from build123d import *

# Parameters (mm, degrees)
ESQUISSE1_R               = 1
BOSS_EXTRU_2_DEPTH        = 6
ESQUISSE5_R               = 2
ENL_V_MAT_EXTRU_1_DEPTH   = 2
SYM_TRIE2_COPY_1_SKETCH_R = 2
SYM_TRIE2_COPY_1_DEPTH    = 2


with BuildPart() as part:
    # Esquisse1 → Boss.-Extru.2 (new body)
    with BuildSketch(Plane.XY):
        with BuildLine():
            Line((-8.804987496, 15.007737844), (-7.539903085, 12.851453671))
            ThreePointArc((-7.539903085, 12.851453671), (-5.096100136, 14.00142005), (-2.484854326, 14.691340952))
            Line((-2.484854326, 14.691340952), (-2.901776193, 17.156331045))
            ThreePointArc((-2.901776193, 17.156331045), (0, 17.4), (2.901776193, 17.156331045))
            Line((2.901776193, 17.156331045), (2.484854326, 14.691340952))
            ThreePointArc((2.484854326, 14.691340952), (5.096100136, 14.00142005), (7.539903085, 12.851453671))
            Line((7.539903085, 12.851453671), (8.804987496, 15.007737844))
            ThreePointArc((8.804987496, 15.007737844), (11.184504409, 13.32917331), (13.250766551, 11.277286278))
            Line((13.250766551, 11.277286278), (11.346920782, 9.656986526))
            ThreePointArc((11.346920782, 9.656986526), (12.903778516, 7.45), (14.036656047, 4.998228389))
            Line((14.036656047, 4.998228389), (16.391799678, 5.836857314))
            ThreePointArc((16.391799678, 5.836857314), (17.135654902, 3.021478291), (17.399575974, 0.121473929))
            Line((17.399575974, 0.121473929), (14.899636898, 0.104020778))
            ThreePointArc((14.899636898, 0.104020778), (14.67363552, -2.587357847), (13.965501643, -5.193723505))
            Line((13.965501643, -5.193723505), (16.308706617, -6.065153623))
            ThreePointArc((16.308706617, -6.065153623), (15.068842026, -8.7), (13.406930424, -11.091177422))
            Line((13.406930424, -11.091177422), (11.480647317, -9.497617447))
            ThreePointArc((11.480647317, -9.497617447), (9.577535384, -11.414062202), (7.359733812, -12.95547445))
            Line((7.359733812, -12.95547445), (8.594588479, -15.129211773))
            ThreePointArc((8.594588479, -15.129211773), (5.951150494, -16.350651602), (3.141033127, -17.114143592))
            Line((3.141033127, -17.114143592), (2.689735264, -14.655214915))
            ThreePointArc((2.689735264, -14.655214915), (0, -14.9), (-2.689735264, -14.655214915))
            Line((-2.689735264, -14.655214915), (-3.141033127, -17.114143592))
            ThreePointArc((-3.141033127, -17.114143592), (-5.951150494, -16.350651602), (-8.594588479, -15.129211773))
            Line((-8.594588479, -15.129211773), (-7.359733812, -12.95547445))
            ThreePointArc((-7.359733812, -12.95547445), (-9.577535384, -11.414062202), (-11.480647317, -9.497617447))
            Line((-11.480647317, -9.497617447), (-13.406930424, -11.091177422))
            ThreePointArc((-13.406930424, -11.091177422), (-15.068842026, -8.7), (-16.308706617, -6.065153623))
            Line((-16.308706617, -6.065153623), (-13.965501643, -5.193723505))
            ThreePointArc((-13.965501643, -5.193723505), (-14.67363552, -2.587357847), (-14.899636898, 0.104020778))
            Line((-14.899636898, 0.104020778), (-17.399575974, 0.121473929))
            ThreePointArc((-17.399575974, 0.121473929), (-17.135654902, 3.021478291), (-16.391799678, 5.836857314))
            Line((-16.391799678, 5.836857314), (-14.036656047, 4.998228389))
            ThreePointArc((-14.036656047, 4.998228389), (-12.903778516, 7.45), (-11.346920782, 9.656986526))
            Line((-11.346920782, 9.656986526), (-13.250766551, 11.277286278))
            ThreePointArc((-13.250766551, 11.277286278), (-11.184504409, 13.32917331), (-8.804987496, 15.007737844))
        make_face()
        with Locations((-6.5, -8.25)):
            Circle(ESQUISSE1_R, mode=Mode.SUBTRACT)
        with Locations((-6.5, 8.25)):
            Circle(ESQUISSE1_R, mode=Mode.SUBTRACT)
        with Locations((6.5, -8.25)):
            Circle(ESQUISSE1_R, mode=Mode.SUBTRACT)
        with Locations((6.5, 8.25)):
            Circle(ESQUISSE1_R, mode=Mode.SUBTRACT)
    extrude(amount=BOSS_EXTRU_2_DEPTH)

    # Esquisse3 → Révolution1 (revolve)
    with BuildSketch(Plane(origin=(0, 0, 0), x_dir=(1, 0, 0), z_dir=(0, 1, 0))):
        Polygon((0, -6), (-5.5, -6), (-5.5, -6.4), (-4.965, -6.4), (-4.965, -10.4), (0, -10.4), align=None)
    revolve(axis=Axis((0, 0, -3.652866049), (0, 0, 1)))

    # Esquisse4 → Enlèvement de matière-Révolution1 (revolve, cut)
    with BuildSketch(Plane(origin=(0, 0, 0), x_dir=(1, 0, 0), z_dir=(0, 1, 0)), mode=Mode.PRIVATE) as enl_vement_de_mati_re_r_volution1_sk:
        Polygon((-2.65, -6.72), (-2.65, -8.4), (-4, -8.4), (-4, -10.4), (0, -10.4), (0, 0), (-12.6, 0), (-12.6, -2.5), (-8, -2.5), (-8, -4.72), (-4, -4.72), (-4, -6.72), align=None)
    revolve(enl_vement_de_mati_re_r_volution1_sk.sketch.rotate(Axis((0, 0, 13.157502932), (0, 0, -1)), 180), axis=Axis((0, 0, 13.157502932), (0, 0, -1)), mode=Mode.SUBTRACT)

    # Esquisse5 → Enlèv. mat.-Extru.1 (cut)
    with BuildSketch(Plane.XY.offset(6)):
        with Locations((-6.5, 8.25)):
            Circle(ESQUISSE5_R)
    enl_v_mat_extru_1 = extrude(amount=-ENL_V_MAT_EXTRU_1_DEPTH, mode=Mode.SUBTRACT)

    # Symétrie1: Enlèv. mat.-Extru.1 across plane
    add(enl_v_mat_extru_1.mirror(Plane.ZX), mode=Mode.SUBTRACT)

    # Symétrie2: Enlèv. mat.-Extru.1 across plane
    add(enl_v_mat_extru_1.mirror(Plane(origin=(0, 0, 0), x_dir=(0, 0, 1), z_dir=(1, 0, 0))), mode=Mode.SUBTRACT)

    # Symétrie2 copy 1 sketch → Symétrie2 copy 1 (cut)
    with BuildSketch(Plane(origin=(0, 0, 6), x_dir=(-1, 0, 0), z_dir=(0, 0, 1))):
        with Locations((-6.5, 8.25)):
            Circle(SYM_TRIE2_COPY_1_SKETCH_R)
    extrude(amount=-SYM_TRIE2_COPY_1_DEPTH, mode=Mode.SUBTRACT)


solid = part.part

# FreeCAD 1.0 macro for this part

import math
import FreeCAD as App
import Part
import Sketcher
Q = App.Units.Quantity


def add_polygon(sketch, points):
    """Adds a closed chain of lines whose ends are joined by coincident constraints."""
    first, n = sketch.GeometryCount, len(points)
    for a, b in zip(points, points[1:] + points[:1]):
        sketch.addGeometry(Part.LineSegment(App.Vector(*a, 0), App.Vector(*b, 0)), False)
    for i in range(n):
        sketch.addConstraint(Sketcher.Constraint("Coincident", first + i, 2, first + (i + 1) % n, 1))

doc = App.newDocument("Part")
body = doc.addObject("PartDesign::Body", "Body")

# Sketch on XY plane
sketch1 = body.newObject("Sketcher::SketchObject", "Sketch")
sketch1.AttachmentSupport = (doc.getObject("XY_Plane"), [""])
sketch1.MapMode = "FlatFace"
sketch1.addGeometry([
    Part.LineSegment(App.Vector(-7.5, 12.9, 0), App.Vector(-8.8, 15, 0)),  # 0
    Part.ArcOfCircle(Part.Circle(App.Vector(0, 0, 0), App.Vector(0, 0, 1), 17.4), math.radians(120.4), math.radians(139.6)),  # 1
    Part.LineSegment(App.Vector(-13.3, 11.3, 0), App.Vector(-11.3, 9.7, 0)),  # 2
    Part.ArcOfCircle(Part.Circle(App.Vector(0, 0, 0), App.Vector(0, 0, 1), 14.9), math.radians(140), math.radians(160)),  # 3
    Part.LineSegment(App.Vector(-14, 5, 0), App.Vector(-16.4, 5.8, 0)),  # 4
    Part.ArcOfCircle(Part.Circle(App.Vector(0, 0, 0), App.Vector(0, 0, 1), 17.4), math.radians(160.4), math.radians(179.6)),  # 5
    Part.LineSegment(App.Vector(-17.4, 0.1, 0), App.Vector(-14.9, 0.1, 0)),  # 6
    Part.ArcOfCircle(Part.Circle(App.Vector(0, 0, 0), App.Vector(0, 0, 1), 14.9), math.radians(180), math.radians(200)),  # 7
    Part.LineSegment(App.Vector(-14, -5.2, 0), App.Vector(-16.3, -6.1, 0)),  # 8
    Part.ArcOfCircle(Part.Circle(App.Vector(0, 0, 0), App.Vector(0, 0, 1), 17.4), math.radians(-159.6), math.radians(-140.4)),  # 9
    Part.LineSegment(App.Vector(-13.4, -11.1, 0), App.Vector(-11.5, -9.5, 0)),  # 10
    Part.ArcOfCircle(Part.Circle(App.Vector(0, 0, 0), App.Vector(0, 0, 1), 14.9), math.radians(-140), math.radians(-120)),  # 11
    Part.LineSegment(App.Vector(-7.4, -13, 0), App.Vector(-8.6, -15.1, 0)),  # 12
    Part.ArcOfCircle(Part.Circle(App.Vector(0, 0, 0), App.Vector(0, 0, 1), 17.4), math.radians(-119.6), math.radians(-100.4)),  # 13
    Part.LineSegment(App.Vector(-3.1, -17.1, 0), App.Vector(-2.7, -14.7, 0)),  # 14
    Part.ArcOfCircle(Part.Circle(App.Vector(0, 0, 0), App.Vector(0, 0, 1), 14.9), math.radians(-100), math.radians(-80)),  # 15
    Part.LineSegment(App.Vector(2.7, -14.7, 0), App.Vector(3.1, -17.1, 0)),  # 16
    Part.ArcOfCircle(Part.Circle(App.Vector(0, 0, 0), App.Vector(0, 0, 1), 17.4), math.radians(-79.6), math.radians(-60.4)),  # 17
    Part.LineSegment(App.Vector(8.6, -15.1, 0), App.Vector(7.4, -13, 0)),  # 18
    Part.ArcOfCircle(Part.Circle(App.Vector(0, 0, 0), App.Vector(0, 0, 1), 14.9), math.radians(-60), math.radians(-40)),  # 19
    Part.LineSegment(App.Vector(11.5, -9.5, 0), App.Vector(13.4, -11.1, 0)),  # 20
    Part.ArcOfCircle(Part.Circle(App.Vector(0, 0, 0), App.Vector(0, 0, 1), 17.4), math.radians(-39.6), math.radians(-20.4)),  # 21
    Part.LineSegment(App.Vector(16.3, -6.1, 0), App.Vector(14, -5.2, 0)),  # 22
    Part.ArcOfCircle(Part.Circle(App.Vector(0, 0, 0), App.Vector(0, 0, 1), 14.9), math.radians(-20), math.radians(0)),  # 23
    Part.LineSegment(App.Vector(14.9, 0.1, 0), App.Vector(17.4, 0.1, 0)),  # 24
    Part.ArcOfCircle(Part.Circle(App.Vector(0, 0, 0), App.Vector(0, 0, 1), 17.4), math.radians(0.4), math.radians(19.6)),  # 25
    Part.LineSegment(App.Vector(16.4, 5.8, 0), App.Vector(14, 5, 0)),  # 26
    Part.ArcOfCircle(Part.Circle(App.Vector(0, 0, 0), App.Vector(0, 0, 1), 14.9), math.radians(20), math.radians(40)),  # 27
    Part.LineSegment(App.Vector(11.3, 9.7, 0), App.Vector(13.3, 11.3, 0)),  # 28
    Part.ArcOfCircle(Part.Circle(App.Vector(0, 0, 0), App.Vector(0, 0, 1), 17.4), math.radians(40.4), math.radians(59.6)),  # 29
    Part.LineSegment(App.Vector(8.8, 15, 0), App.Vector(7.5, 12.9, 0)),  # 30
    Part.ArcOfCircle(Part.Circle(App.Vector(0, 0, 0), App.Vector(0, 0, 1), 14.9), math.radians(60), math.radians(80)),  # 31
    Part.LineSegment(App.Vector(2.5, 14.7, 0), App.Vector(2.9, 17.2, 0)),  # 32
    Part.ArcOfCircle(Part.Circle(App.Vector(0, 0, 0), App.Vector(0, 0, 1), 17.4), math.radians(80.4), math.radians(99.6)),  # 33
    Part.LineSegment(App.Vector(-2.9, 17.2, 0), App.Vector(-2.5, 14.7, 0)),  # 34
    Part.ArcOfCircle(Part.Circle(App.Vector(0, 0, 0), App.Vector(0, 0, 1), 14.9), math.radians(100), math.radians(120)),  # 35
    Part.Circle(App.Vector(6.5, -8.2, 0), App.Vector(0, 0, 1), 1),  # 36
    Part.Circle(App.Vector(-6.5, -8.2, 0), App.Vector(0, 0, 1), 1),  # 37
    Part.Circle(App.Vector(6.5, 8.2, 0), App.Vector(0, 0, 1), 1),  # 38
    Part.Circle(App.Vector(-6.5, 8.2, 0), App.Vector(0, 0, 1), 1),  # 39
], False)
sketch1.addConstraint([
    Sketcher.Constraint("Coincident", 0, 2, 1, 1),
    Sketcher.Constraint("Coincident", 1, 2, 2, 1),
    Sketcher.Constraint("Coincident", 2, 2, 3, 1),
    Sketcher.Constraint("Coincident", 3, 2, 4, 1),
    Sketcher.Constraint("Coincident", 4, 2, 5, 1),
    Sketcher.Constraint("Coincident", 5, 2, 6, 1),
    Sketcher.Constraint("Coincident", 6, 2, 7, 1),
    Sketcher.Constraint("Coincident", 7, 2, 8, 1),
    Sketcher.Constraint("Coincident", 8, 2, 9, 1),
    Sketcher.Constraint("Coincident", 9, 2, 10, 1),
    Sketcher.Constraint("Coincident", 10, 2, 11, 1),
    Sketcher.Constraint("Coincident", 11, 2, 12, 1),
    Sketcher.Constraint("Coincident", 12, 2, 13, 1),
    Sketcher.Constraint("Coincident", 13, 2, 14, 1),
    Sketcher.Constraint("Coincident", 14, 2, 15, 1),
    Sketcher.Constraint("Coincident", 15, 2, 16, 1),
    Sketcher.Constraint("Coincident", 16, 2, 17, 1),
    Sketcher.Constraint("Coincident", 17, 2, 18, 1),
    Sketcher.Constraint("Coincident", 18, 2, 19, 1),
    Sketcher.Constraint("Coincident", 19, 2, 20, 1),
    Sketcher.Constraint("Coincident", 20, 2, 21, 1),
    Sketcher.Constraint("Coincident", 21, 2, 22, 1),
    Sketcher.Constraint("Coincident", 22, 2, 23, 1),
    Sketcher.Constraint("Coincident", 23, 2, 24, 1),
    Sketcher.Constraint("Coincident", 24, 2, 25, 1),
    Sketcher.Constraint("Coincident", 25, 2, 26, 1),
    Sketcher.Constraint("Coincident", 26, 2, 27, 1),
    Sketcher.Constraint("Coincident", 27, 2, 28, 1),
    Sketcher.Constraint("Coincident", 28, 2, 29, 1),
    Sketcher.Constraint("Coincident", 29, 2, 30, 1),
    Sketcher.Constraint("Coincident", 30, 2, 31, 1),
    Sketcher.Constraint("Coincident", 31, 2, 32, 1),
    Sketcher.Constraint("Coincident", 32, 2, 33, 1),
    Sketcher.Constraint("Coincident", 33, 2, 34, 1),
    Sketcher.Constraint("Coincident", 34, 2, 35, 1),
    Sketcher.Constraint("Coincident", 35, 2, 0, 1),
    Sketcher.Constraint("Coincident", 1, 3, -1, 1),
    Sketcher.Constraint("Coincident", 3, 3, -1, 1),
    Sketcher.Constraint("Coincident", 5, 3, -1, 1),
    Sketcher.Constraint("Coincident", 7, 3, -1, 1),
    Sketcher.Constraint("Coincident", 9, 3, -1, 1),
    Sketcher.Constraint("Coincident", 11, 3, -1, 1),
    Sketcher.Constraint("Coincident", 13, 3, -1, 1),
    Sketcher.Constraint("Coincident", 15, 3, -1, 1),
    Sketcher.Constraint("Coincident", 17, 3, -1, 1),
    Sketcher.Constraint("Coincident", 19, 3, -1, 1),
    Sketcher.Constraint("Coincident", 21, 3, -1, 1),
    Sketcher.Constraint("Coincident", 23, 3, -1, 1),
    Sketcher.Constraint("Coincident", 25, 3, -1, 1),
    Sketcher.Constraint("Coincident", 27, 3, -1, 1),
    Sketcher.Constraint("Coincident", 29, 3, -1, 1),
    Sketcher.Constraint("Coincident", 31, 3, -1, 1),
    Sketcher.Constraint("Coincident", 33, 3, -1, 1),
    Sketcher.Constraint("Coincident", 35, 3, -1, 1),
    Sketcher.Constraint("Equal", 1, 5),
    Sketcher.Constraint("Equal", 3, 7),
    Sketcher.Constraint("Equal", 5, 9),
    Sketcher.Constraint("Equal", 7, 11),
    Sketcher.Constraint("Equal", 9, 13),
    Sketcher.Constraint("Equal", 11, 15),
    Sketcher.Constraint("Equal", 13, 17),
    Sketcher.Constraint("Equal", 15, 19),
    Sketcher.Constraint("Equal", 17, 21),
    Sketcher.Constraint("Equal", 19, 23),
    Sketcher.Constraint("Equal", 21, 25),
    Sketcher.Constraint("Equal", 23, 27),
    Sketcher.Constraint("Equal", 25, 29),
    Sketcher.Constraint("Equal", 27, 31),
    Sketcher.Constraint("Equal", 29, 33),
    Sketcher.Constraint("Equal", 31, 35),
    Sketcher.Constraint("Equal", 36, 37),
    Sketcher.Constraint("Equal", 37, 38),
    Sketcher.Constraint("Equal", 38, 39),
    Sketcher.Constraint("Symmetric", 37, 3, 38, 3, -1, 1),
    Sketcher.Constraint("Symmetric", 36, 3, 39, 3, -1, 1),
    Sketcher.Constraint("Symmetric", 36, 3, 37, 3, -2),
    Sketcher.Constraint("Horizontal", 14, 2, 15, 2),
    Sketcher.Constraint("Horizontal", 13, 2, 16, 2),
    Sketcher.Constraint("Horizontal", 12, 2, 17, 2),
    Sketcher.Constraint("Horizontal", 11, 2, 18, 2),
    Sketcher.Constraint("Horizontal", 10, 2, 19, 2),
    Sketcher.Constraint("Horizontal", 9, 2, 20, 2),
    Sketcher.Constraint("Horizontal", 8, 2, 21, 2),
    Sketcher.Constraint("Horizontal", 7, 2, 22, 2),
    Sketcher.Constraint("Horizontal", 6, 2, 23, 2),
    Sketcher.Constraint("Horizontal", 5, 2, 24, 2),
    Sketcher.Constraint("Horizontal", 4, 2, 25, 2),
    Sketcher.Constraint("Horizontal", 3, 2, 26, 2),
    Sketcher.Constraint("Horizontal", 2, 2, 27, 2),
    Sketcher.Constraint("Horizontal", 1, 2, 28, 2),
    Sketcher.Constraint("Horizontal", 0, 2, 29, 2),
    Sketcher.Constraint("Horizontal", 32, 2, 33, 2),
    Sketcher.Constraint("Horizontal", 31, 2, 34, 2),
    Sketcher.Constraint("Horizontal", 30, 2, 35, 2),
    Sketcher.Constraint("Diameter", 36, Q("2 mm")),
    Sketcher.Constraint("Radius", 1, Q("17.4 mm")),
    Sketcher.Constraint("Radius", 3, Q("14.9 mm")),
    Sketcher.Constraint("Angle", 0, Q("120.4 deg")),
    Sketcher.Constraint("Angle", 2, Q("-40.4 deg")),
    Sketcher.Constraint("Angle", 4, Q("160.4 deg")),
    Sketcher.Constraint("Angle", 6, Q("-0.4 deg")),
    Sketcher.Constraint("Angle", 8, Q("-159.6 deg")),
    Sketcher.Constraint("Angle", 10, Q("39.6 deg")),
    Sketcher.Constraint("Angle", 12, Q("-119.6 deg")),
    Sketcher.Constraint("Angle", 14, Q("79.6 deg")),
    Sketcher.Constraint("Angle", 32, Q("80.4 deg")),
    Sketcher.Constraint("DistanceX", -1, 1, 36, 3, Q("6.5 mm")),
    Sketcher.Constraint("DistanceY", 36, 3, -1, 1, Q("8.25 mm")),
    Sketcher.Constraint("DistanceX", 11, 2, 14, 2, Q("4.669999 mm")),
    Sketcher.Constraint("DistanceX", 4, 2, -1, 1, Q("16.3918 mm")),
    Sketcher.Constraint("DistanceX", 7, 2, -1, 1, Q("13.965502 mm")),
    Sketcher.Constraint("DistanceY", 9, 2, 6, 2, Q("11.195198 mm")),
    Sketcher.Constraint("DistanceX", 2, 2, -1, 1, Q("11.346921 mm")),
    Sketcher.Constraint("DistanceY", -1, 1, 6, 2, Q("0.104021 mm")),
    Sketcher.Constraint("DistanceX", 12, 2, -1, 1, Q("8.594588 mm")),
    Sketcher.Constraint("DistanceY", -1, 1, 31, 2, Q("14.691341 mm")),
    Sketcher.Constraint("DistanceX", 1, 2, 0, 2, Q("4.445779 mm")),
])
pad1 = body.newObject("PartDesign::Pad", "Pad")
pad1.Profile = sketch1
pad1.Length = 6

# Sketch on XZ plane
sketch2 = body.newObject("Sketcher::SketchObject", "Sketch001")
sketch2.AttachmentSupport = (doc.getObject("XZ_Plane"), [""])
sketch2.MapMode = "FlatFace"
add_polygon(sketch2, [(0, 6), (-5.5, 6), (-5.5, 6.4), (-4.96, 6.4), (-4.96, 10.4), (0, 10.4)])  # lines 0-5
sketch2.addConstraint([
    Sketcher.Constraint("Horizontal", 0),
    Sketcher.Constraint("Vertical", 1),
    Sketcher.Constraint("Horizontal", 2),
    Sketcher.Constraint("Vertical", 3),
    Sketcher.Constraint("Horizontal", 4),
    Sketcher.Constraint("Vertical", 5),
    Sketcher.Constraint("PointOnObject", 4, 2, -2),
    Sketcher.Constraint("DistanceY", 3, 1, 3, 2, Q("4 mm")),
    Sketcher.Constraint("DistanceX", 0, 2, 0, 1, Q("5.5 mm")),
    Sketcher.Constraint("DistanceY", 1, 1, 1, 2, Q("0.4 mm")),
    Sketcher.Constraint("DistanceY", -1, 1, 0, 2, Q("6 mm")),
    Sketcher.Constraint("DistanceX", 2, 1, 2, 2, Q("0.535 mm")),
])
revolution = body.newObject("PartDesign::Revolution", "Revolution")
revolution.Profile = sketch2
revolution.ReferenceAxis = (sketch2, ["V_Axis"])
revolution.Angle = 360

# Sketch on XZ plane
sketch3 = body.newObject("Sketcher::SketchObject", "Sketch002")
sketch3.AttachmentSupport = (doc.getObject("XZ_Plane"), [""])
sketch3.MapMode = "FlatFace"
add_polygon(sketch3, [(-2.6, 6.7), (-2.6, 8.4), (-4, 8.4), (-4, 10.4), (0, 10.4), (0, 0), (-12.6, 0), (-12.6, 2.5), (-8, 2.5), (-8, 4.7), (-4, 4.7), (-4, 6.7)])  # lines 0-11
sketch3.addConstraint([
    Sketcher.Constraint("Vertical", 0),
    Sketcher.Constraint("Horizontal", 1),
    Sketcher.Constraint("Vertical", 2),
    Sketcher.Constraint("Horizontal", 3),
    Sketcher.Constraint("Vertical", 4),
    Sketcher.Constraint("Horizontal", 5),
    Sketcher.Constraint("Vertical", 6),
    Sketcher.Constraint("Horizontal", 7),
    Sketcher.Constraint("Vertical", 8),
    Sketcher.Constraint("Horizontal", 9),
    Sketcher.Constraint("Vertical", 10),
    Sketcher.Constraint("Horizontal", 11),
    Sketcher.Constraint("Coincident", 4, 2, -1, 1),
    Sketcher.Constraint("Vertical", 2, 2, 9, 2),
    Sketcher.Constraint("Equal", 3, 9),
    Sketcher.Constraint("Equal", 2, 10),
    Sketcher.Constraint("DistanceX", 3, 1, 3, 2, Q("4 mm")),
    Sketcher.Constraint("DistanceY", 2, 1, 2, 2, Q("2 mm")),
    Sketcher.Constraint("DistanceX", 5, 2, 5, 1, Q("12.6 mm")),
    Sketcher.Constraint("DistanceY", 4, 2, 4, 1, Q("10.4 mm")),
    Sketcher.Constraint("DistanceY", 6, 1, 6, 2, Q("2.5 mm")),
    Sketcher.Constraint("DistanceX", 1, 2, 1, 1, Q("1.35 mm")),
    Sketcher.Constraint("DistanceY", 0, 1, 0, 2, Q("1.68 mm")),
])
groove = body.newObject("PartDesign::Groove", "Groove")
groove.Profile = sketch3
groove.ReferenceAxis = (sketch3, ["V_Axis"])
groove.Angle = 360

# Sketch on XY plane
sketch4 = body.newObject("Sketcher::SketchObject", "Sketch003")
sketch4.AttachmentSupport = (doc.getObject("XY_Plane"), [""])
sketch4.MapMode = "FlatFace"
sketch4.AttachmentOffset = App.Placement(App.Vector(0, 0, 6), App.Rotation())
sketch4.addGeometry(Part.Circle(App.Vector(-6.5, 8.2, 0), App.Vector(0, 0, 1), 2), False)
sketch4.addConstraint([
    Sketcher.Constraint("Diameter", 0, Q("4 mm")),
    Sketcher.Constraint("DistanceX", 0, 3, -1, 1, Q("6.5 mm")),
    Sketcher.Constraint("DistanceY", -1, 1, 0, 3, Q("8.25 mm")),
])
pocket1 = body.newObject("PartDesign::Pocket", "Pocket")
pocket1.Profile = sketch4
pocket1.Length = 2
doc.recompute()

mirrored = body.newObject("PartDesign::Mirrored", "Mirrored")
mirrored.Originals = [pocket1]
mirrored.MirrorPlane = (doc.getObject("XZ_Plane"), [""])
body.Tip = mirrored
doc.recompute()

mirrored2 = body.newObject("PartDesign::Mirrored", "Mirrored001")
mirrored2.Originals = [pocket1]
mirrored2.MirrorPlane = (doc.getObject("YZ_Plane"), [""])
body.Tip = mirrored2

# Sketch on XY plane
sketch5 = body.newObject("Sketcher::SketchObject", "Sketch004")
sketch5.AttachmentSupport = (doc.getObject("XY_Plane"), [""])
sketch5.MapMode = "FlatFace"
sketch5.AttachmentOffset = App.Placement(App.Vector(0, 0, 6), App.Rotation())
sketch5.addGeometry(Part.Circle(App.Vector(6.5, -8.2, 0), App.Vector(0, 0, 1), 2), False)
sketch5.addConstraint([
    Sketcher.Constraint("Diameter", 0, Q("4 mm")),
    Sketcher.Constraint("DistanceX", -1, 1, 0, 3, Q("6.5 mm")),
    Sketcher.Constraint("DistanceY", 0, 3, -1, 1, Q("8.25 mm")),
])
pocket2 = body.newObject("PartDesign::Pocket", "Pocket001")
pocket2.Profile = sketch5
pocket2.Length = 2

doc.recompute()
